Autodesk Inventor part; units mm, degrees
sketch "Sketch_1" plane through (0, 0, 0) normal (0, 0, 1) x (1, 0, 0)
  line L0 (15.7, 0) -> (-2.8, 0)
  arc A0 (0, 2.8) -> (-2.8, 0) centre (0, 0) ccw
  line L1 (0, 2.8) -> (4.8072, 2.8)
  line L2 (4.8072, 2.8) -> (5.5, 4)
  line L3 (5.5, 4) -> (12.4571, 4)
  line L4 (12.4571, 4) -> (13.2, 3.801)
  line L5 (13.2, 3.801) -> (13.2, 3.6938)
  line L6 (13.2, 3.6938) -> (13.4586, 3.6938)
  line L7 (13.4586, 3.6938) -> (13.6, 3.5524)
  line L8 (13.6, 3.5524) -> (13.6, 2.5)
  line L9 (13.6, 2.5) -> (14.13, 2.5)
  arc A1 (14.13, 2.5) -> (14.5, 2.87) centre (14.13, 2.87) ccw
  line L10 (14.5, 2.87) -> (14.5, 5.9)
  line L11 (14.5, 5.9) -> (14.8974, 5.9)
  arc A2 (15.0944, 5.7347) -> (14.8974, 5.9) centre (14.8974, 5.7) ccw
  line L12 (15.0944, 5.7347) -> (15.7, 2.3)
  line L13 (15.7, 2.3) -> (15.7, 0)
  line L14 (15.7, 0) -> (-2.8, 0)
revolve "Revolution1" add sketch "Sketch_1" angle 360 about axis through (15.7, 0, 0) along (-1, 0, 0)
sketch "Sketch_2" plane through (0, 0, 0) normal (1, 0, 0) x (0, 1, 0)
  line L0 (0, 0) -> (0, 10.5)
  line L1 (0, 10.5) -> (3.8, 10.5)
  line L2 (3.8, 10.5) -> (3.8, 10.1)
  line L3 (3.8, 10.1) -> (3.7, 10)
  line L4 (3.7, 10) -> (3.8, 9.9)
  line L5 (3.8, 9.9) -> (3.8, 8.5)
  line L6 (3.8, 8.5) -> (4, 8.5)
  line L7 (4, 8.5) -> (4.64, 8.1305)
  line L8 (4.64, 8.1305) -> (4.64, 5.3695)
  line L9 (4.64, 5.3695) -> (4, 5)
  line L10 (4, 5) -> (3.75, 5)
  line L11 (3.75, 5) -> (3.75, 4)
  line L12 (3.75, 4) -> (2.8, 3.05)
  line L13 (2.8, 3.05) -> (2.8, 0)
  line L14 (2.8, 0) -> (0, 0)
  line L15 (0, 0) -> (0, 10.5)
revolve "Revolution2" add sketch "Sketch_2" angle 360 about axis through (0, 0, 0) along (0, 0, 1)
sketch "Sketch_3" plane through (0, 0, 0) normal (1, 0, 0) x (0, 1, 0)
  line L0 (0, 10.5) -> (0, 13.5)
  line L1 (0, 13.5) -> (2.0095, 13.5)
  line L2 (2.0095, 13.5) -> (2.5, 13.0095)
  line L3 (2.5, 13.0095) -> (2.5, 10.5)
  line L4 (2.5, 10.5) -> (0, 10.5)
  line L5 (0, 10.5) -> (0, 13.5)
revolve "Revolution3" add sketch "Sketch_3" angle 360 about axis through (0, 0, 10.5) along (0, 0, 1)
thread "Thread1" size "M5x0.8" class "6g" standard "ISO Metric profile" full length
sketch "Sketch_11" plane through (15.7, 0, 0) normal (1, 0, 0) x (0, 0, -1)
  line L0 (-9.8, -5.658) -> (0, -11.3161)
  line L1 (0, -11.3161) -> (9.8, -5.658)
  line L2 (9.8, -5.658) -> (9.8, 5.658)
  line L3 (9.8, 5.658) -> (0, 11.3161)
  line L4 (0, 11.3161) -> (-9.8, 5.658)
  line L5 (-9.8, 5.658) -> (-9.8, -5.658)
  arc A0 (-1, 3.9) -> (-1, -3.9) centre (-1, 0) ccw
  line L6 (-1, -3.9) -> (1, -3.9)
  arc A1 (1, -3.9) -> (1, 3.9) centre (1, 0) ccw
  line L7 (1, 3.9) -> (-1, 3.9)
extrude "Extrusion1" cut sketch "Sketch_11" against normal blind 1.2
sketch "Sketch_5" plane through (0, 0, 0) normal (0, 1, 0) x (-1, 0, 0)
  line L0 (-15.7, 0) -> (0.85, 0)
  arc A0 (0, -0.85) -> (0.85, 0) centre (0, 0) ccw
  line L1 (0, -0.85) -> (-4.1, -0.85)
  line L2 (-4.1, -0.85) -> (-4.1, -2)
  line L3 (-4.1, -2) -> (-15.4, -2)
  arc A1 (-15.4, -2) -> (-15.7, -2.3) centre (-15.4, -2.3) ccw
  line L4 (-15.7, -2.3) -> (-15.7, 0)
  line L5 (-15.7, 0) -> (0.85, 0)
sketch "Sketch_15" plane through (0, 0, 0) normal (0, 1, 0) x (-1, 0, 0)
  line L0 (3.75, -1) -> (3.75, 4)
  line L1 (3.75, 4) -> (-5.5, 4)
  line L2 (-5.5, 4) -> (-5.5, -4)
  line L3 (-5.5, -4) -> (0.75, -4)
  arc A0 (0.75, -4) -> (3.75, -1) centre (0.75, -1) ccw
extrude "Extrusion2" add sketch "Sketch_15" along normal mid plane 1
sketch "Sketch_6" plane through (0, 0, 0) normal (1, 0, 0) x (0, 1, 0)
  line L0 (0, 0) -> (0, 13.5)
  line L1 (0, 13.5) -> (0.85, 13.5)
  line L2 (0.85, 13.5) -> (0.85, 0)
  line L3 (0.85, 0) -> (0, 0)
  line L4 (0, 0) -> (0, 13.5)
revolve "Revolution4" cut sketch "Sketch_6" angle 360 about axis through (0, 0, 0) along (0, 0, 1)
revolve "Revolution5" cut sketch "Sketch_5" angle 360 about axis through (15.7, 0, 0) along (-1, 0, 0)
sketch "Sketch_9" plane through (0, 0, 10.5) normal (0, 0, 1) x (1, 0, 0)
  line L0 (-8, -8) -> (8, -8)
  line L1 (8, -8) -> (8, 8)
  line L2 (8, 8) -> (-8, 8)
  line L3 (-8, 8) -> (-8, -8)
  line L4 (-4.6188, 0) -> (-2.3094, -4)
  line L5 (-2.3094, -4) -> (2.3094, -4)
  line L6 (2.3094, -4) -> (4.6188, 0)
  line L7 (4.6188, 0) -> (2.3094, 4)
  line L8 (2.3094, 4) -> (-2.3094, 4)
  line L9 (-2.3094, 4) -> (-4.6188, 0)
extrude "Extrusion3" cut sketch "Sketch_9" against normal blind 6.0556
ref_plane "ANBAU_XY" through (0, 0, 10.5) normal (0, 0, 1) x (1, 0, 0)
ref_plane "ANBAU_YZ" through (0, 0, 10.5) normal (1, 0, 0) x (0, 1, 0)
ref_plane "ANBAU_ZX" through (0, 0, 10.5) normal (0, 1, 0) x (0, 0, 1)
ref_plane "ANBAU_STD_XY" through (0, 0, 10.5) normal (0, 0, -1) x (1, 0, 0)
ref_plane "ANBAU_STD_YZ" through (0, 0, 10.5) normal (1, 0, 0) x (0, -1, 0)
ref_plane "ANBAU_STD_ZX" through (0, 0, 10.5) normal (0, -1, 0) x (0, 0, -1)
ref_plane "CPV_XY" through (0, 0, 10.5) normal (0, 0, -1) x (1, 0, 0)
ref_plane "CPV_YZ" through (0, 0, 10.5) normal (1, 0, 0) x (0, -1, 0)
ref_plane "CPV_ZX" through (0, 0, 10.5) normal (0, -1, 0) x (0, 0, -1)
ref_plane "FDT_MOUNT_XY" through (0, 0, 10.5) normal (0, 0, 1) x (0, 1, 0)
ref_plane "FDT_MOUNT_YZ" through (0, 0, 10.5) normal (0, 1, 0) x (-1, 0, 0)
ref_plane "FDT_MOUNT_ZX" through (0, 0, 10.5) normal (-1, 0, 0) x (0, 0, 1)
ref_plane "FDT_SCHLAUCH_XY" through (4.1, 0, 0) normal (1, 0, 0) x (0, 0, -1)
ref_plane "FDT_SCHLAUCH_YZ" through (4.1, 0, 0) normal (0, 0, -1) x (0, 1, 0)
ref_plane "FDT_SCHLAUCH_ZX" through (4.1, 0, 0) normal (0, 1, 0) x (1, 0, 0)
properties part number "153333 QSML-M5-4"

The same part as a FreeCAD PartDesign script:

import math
import FreeCAD as App
import Part
import Sketcher

V = App.Vector
Q = App.Units.Quantity


def add_polygon(sketch, points):
    """Adds a closed chain of lines whose ends are joined by coincident constraints."""
    first, n = sketch.GeometryCount, len(points)
    for a, b in zip(points, points[1:] + points[:1]):
        sketch.addGeometry(Part.LineSegment(App.Vector(*a, 0), App.Vector(*b, 0)), False)
    for i in range(n):
        sketch.addConstraint(Sketcher.Constraint("Coincident", first + i, 2, first + (i + 1) % n, 1))

doc = App.newDocument("Part")
params = doc.addObject("Spreadsheet::Sheet", "Params")
for row, (alias, value) in enumerate([
    ("sketch1_radius", "0.2 mm"),
    ("sketch1_radius2", "2.8 mm"),
    ("sketch1_radius3", "0.37 mm"),
    ("sketch1_width", "18.5 mm"),
    ("sketch1_height", "2.3 mm"),
    ("revolution_angle", "360 deg"),
    ("sketch2_height", "1 mm"),
    ("sketch2_width", "2.8 mm"),
    ("sketch2_width2", "0.2 mm"),
    ("sketch2_width3", "3.8 mm"),
    ("sketch2_height2", "10.5 mm"),
    ("revolution2_angle", "360 deg"),
    ("sketch3_height", "3 mm"),
    ("sketch3_width", "2.5 mm"),
    ("revolution3_angle", "360 deg"),
    ("sketch4_radius", "3.9 mm"),
    ("sketch4_height", "2 mm"),
    ("pocket1_length", "1.2 mm"),
    ("sketch5_radius", "3 mm"),
    ("sketch5_height", "5 mm"),
    ("sketch5_width", "9.25 mm"),
    ("pad1_length", "1 mm"),
    ("sketch6_height", "13.5 mm"),
    ("sketch6_width", "0.85 mm"),
    ("groove_angle", "360 deg"),
    ("sketch7_radius", "0.3 mm"),
    ("sketch7_radius2", "0.85 mm"),
    ("sketch7_width", "11.3 mm"),
    ("sketch7_width2", "4.1 mm"),
    ("sketch7_height", "2.3 mm"),
    ("groove2_angle", "360 deg"),
    ("sketch8_width", "16 mm"),
    ("pocket2_length", "6.0556 mm"),
], start=1):
    params.set(f"A{row}", alias)
    params.set(f"B{row}", "=" + value)
    params.setAlias(f"B{row}", alias)

body = doc.addObject("PartDesign::Body", "Body")

sketch1 = body.newObject("Sketcher::SketchObject", "Sketch")
sketch1.AttachmentSupport = (doc.getObject("XY_Plane"), [""])
sketch1.MapMode = "FlatFace"
sketch1.addGeometry([
    Part.LineSegment(V(-2.8, 0, 0), V(15.7, 0, 0)),
    Part.LineSegment(V(15.7, 0, 0), V(15.7, 2.3, 0)),
    Part.LineSegment(V(15.7, 2.3, 0), V(15.0944, 5.7347, 0)),
    Part.ArcOfCircle(Part.Circle(V(14.8974, 5.7, 0), V(0, 0, 1), 0.200033), math.radians(9.989728), math.radians(90)),
    Part.LineSegment(V(14.8974, 5.9, 0), V(14.5, 5.9, 0)),
    Part.LineSegment(V(14.5, 5.9, 0), V(14.5, 2.87, 0)),
    Part.ArcOfCircle(Part.Circle(V(14.13, 2.87, 0), V(0, 0, 1), 0.37), math.radians(-90), math.radians(0)),
    Part.LineSegment(V(14.13, 2.5, 0), V(13.6, 2.5, 0)),
    Part.LineSegment(V(13.6, 2.5, 0), V(13.6, 3.5524, 0)),
    Part.LineSegment(V(13.6, 3.5524, 0), V(13.4586, 3.6938, 0)),
    Part.LineSegment(V(13.4586, 3.6938, 0), V(13.2, 3.6938, 0)),
    Part.LineSegment(V(13.2, 3.6938, 0), V(13.2, 3.801, 0)),
    Part.LineSegment(V(13.2, 3.801, 0), V(12.4571, 4, 0)),
    Part.LineSegment(V(12.4571, 4, 0), V(5.5, 4, 0)),
    Part.LineSegment(V(5.5, 4, 0), V(4.8072, 2.8, 0)),
    Part.LineSegment(V(4.8072, 2.8, 0), V(0, 2.8, 0)),
    Part.ArcOfCircle(Part.Circle(V(0, 0, 0), V(0, 0, 1), 2.8), math.radians(90), math.radians(180)),
], False)
sketch1.addConstraint([
    Sketcher.Constraint("Coincident", 0, 2, 1, 1),
    Sketcher.Constraint("Coincident", 1, 2, 2, 1),
    Sketcher.Constraint("Tangent", 2, 2, 3, 1),
    Sketcher.Constraint("Tangent", 3, 2, 4, 1),
    Sketcher.Constraint("Coincident", 4, 2, 5, 1),
    Sketcher.Constraint("Tangent", 5, 2, 6, 2),
    Sketcher.Constraint("Tangent", 6, 1, 7, 1),
    Sketcher.Constraint("Coincident", 7, 2, 8, 1),
    Sketcher.Constraint("Coincident", 8, 2, 9, 1),
    Sketcher.Constraint("Coincident", 9, 2, 10, 1),
    Sketcher.Constraint("Coincident", 10, 2, 11, 1),
    Sketcher.Constraint("Coincident", 11, 2, 12, 1),
    Sketcher.Constraint("Coincident", 12, 2, 13, 1),
    Sketcher.Constraint("Coincident", 13, 2, 14, 1),
    Sketcher.Constraint("Coincident", 14, 2, 15, 1),
    Sketcher.Constraint("Tangent", 15, 2, 16, 1),
    Sketcher.Constraint("Coincident", 16, 2, 0, 1),
    Sketcher.Constraint("Horizontal", 0),
    Sketcher.Constraint("Vertical", 1),
    Sketcher.Constraint("Horizontal", 4),
    Sketcher.Constraint("Vertical", 5),
    Sketcher.Constraint("Horizontal", 7),
    Sketcher.Constraint("Vertical", 8),
    Sketcher.Constraint("Horizontal", 10),
    Sketcher.Constraint("Vertical", 11),
    Sketcher.Constraint("Horizontal", 13),
    Sketcher.Constraint("Horizontal", 15),
    Sketcher.Constraint("Coincident", 16, 3, -1, 1),
    Sketcher.Constraint("PointOnObject", 0, 2, -1),
    Sketcher.Constraint("Radius", 3, Q("0.2 mm")),
    Sketcher.Constraint("Radius", 16, Q("2.8 mm")),
    Sketcher.Constraint("Angle", 2, Q("99.9995 deg")),
    Sketcher.Constraint("Angle", 9, Q("135 deg")),
    Sketcher.Constraint("Angle", 14, Q("-119.9993 deg")),
    Sketcher.Constraint("Radius", 6, Q("0.37 mm")),
    Sketcher.Constraint("DistanceX", 0, 1, 0, 2, Q("18.5 mm")),
    Sketcher.Constraint("DistanceY", 1, 1, 1, 2, Q("2.3 mm")),
    Sketcher.Constraint("DistanceY", -1, 1, 12, 2, Q("4 mm")),
    Sketcher.Constraint("Distance", 9, Q("0.2 mm")),
    Sketcher.Constraint("DistanceX", 7, 2, 7, 1, Q("0.53 mm")),
    Sketcher.Constraint("DistanceY", 5, 2, 5, 1, Q("3.03 mm")),
    Sketcher.Constraint("DistanceY", -1, 1, 3, 3, Q("5.7 mm")),
    Sketcher.Constraint("DistanceX", -1, 1, 4, 2, Q("14.5 mm")),
    Sketcher.Constraint("DistanceX", -1, 1, 10, 2, Q("13.2 mm")),
    Sketcher.Constraint("DistanceX", -1, 1, 13, 2, Q("5.5 mm")),
    Sketcher.Constraint("DistanceX", 13, 2, 13, 1, Q("6.957 mm")),
    Sketcher.Constraint("Distance", 12, Q("0.769 mm")),
    Sketcher.Constraint("DistanceY", 8, 1, 8, 2, Q("1.0524 mm")),
])
sketch1.setExpression("Constraints[29]", "Params.sketch1_radius")
sketch1.setExpression("Constraints[30]", "Params.sketch1_radius2")
sketch1.setExpression("Constraints[34]", "Params.sketch1_radius3")
sketch1.setExpression("Constraints[35]", "Params.sketch1_width")
sketch1.setExpression("Constraints[36]", "Params.sketch1_height")
revolution = body.newObject("PartDesign::Revolution", "Revolution")
revolution.Profile = sketch1
revolution.ReferenceAxis = (sketch1, ["H_Axis"])
revolution.setExpression("Angle", "Params.revolution_angle")

sketch2 = body.newObject("Sketcher::SketchObject", "Sketch001")
sketch2.AttachmentSupport = (doc.getObject("YZ_Plane"), [""])
sketch2.MapMode = "FlatFace"
add_polygon(sketch2, [(0, 10.5), (0, 0), (2.8, 0), (2.8, 3.05), (3.75, 4), (3.75, 5), (4, 5), (4.64, 5.3695), (4.64, 8.1305), (4, 8.5), (3.8, 8.5), (3.8, 9.9), (3.7, 10), (3.8, 10.1), (3.8, 10.5)])
sketch2.addConstraint([
    Sketcher.Constraint("Vertical", 0),
    Sketcher.Constraint("Horizontal", 1),
    Sketcher.Constraint("Vertical", 2),
    Sketcher.Constraint("Vertical", 4),
    Sketcher.Constraint("Horizontal", 5),
    Sketcher.Constraint("Vertical", 7),
    Sketcher.Constraint("Horizontal", 9),
    Sketcher.Constraint("Vertical", 10),
    Sketcher.Constraint("Vertical", 13),
    Sketcher.Constraint("Horizontal", 14),
    Sketcher.Constraint("Coincident", 0, 2, -1, 1),
    Sketcher.Constraint("Perpendicular", 3, 11),
    Sketcher.Constraint("Perpendicular", 11, 12),
    Sketcher.Constraint("Vertical", 5, 2, 8, 2),
    Sketcher.Constraint("Vertical", 10, 2, 12, 2),
    Sketcher.Constraint("Equal", 6, 8),
    Sketcher.Constraint("Equal", 11, 12),
    Sketcher.Constraint("DistanceY", 4, 1, 4, 2, Q("1 mm")),
    Sketcher.Constraint("Angle", 6, Q("29.9997 deg")),
    Sketcher.Constraint("DistanceX", 1, 1, 1, 2, Q("2.8 mm")),
    Sketcher.Constraint("DistanceX", 9, 2, 9, 1, Q("0.2 mm")),
    Sketcher.Constraint("DistanceX", 14, 2, 14, 1, Q("3.8 mm")),
    Sketcher.Constraint("DistanceY", 0, 2, 0, 1, Q("10.5 mm")),
    Sketcher.Constraint("DistanceY", 10, 1, 10, 2, Q("1.4 mm")),
    Sketcher.Constraint("DistanceY", 13, 1, 13, 2, Q("0.4 mm")),
    Sketcher.Constraint("DistanceY", -1, 1, 3, 2, Q("4 mm")),
    Sketcher.Constraint("DistanceY", -1, 1, 11, 2, Q("10 mm")),
    Sketcher.Constraint("DistanceX", 5, 1, 5, 2, Q("0.25 mm")),
    Sketcher.Constraint("DistanceY", 7, 1, 7, 2, Q("2.761 mm")),
])
sketch2.setExpression("Constraints[32]", "Params.sketch2_height")
sketch2.setExpression("Constraints[34]", "Params.sketch2_width")
sketch2.setExpression("Constraints[35]", "Params.sketch2_width2")
sketch2.setExpression("Constraints[36]", "Params.sketch2_width3")
sketch2.setExpression("Constraints[37]", "Params.sketch2_height2")
revolution2 = body.newObject("PartDesign::Revolution", "Revolution001")
revolution2.Profile = sketch2
revolution2.ReferenceAxis = (sketch2, ["V_Axis"])
revolution2.setExpression("Angle", "Params.revolution2_angle")

sketch3 = body.newObject("Sketcher::SketchObject", "Sketch002")
sketch3.AttachmentSupport = (doc.getObject("YZ_Plane"), [""])
sketch3.MapMode = "FlatFace"
add_polygon(sketch3, [(0, 13.5), (0, 10.5), (2.5, 10.5), (2.5, 13.0095), (2.0095, 13.5)])
sketch3.addConstraint([
    Sketcher.Constraint("Vertical", 0),
    Sketcher.Constraint("Horizontal", 1),
    Sketcher.Constraint("Vertical", 2),
    Sketcher.Constraint("Horizontal", 4),
    Sketcher.Constraint("PointOnObject", 0, 2, -2),
    Sketcher.Constraint("DistanceY", 0, 2, 0, 1, Q("3 mm")),
    Sketcher.Constraint("Angle", 3, Q("135 deg")),
    Sketcher.Constraint("DistanceX", 1, 1, 1, 2, Q("2.5 mm")),
    Sketcher.Constraint("DistanceY", -1, 1, 0, 2, Q("10.5 mm")),
    Sketcher.Constraint("DistanceX", 4, 2, 4, 1, Q("2.0095 mm")),
])
sketch3.setExpression("Constraints[10]", "Params.sketch3_height")
sketch3.setExpression("Constraints[12]", "Params.sketch3_width")
revolution3 = body.newObject("PartDesign::Revolution", "Revolution002")
revolution3.Profile = sketch3
revolution3.ReferenceAxis = (sketch3, ["V_Axis"])
revolution3.setExpression("Angle", "Params.revolution3_angle")

sketch4 = body.newObject("Sketcher::SketchObject", "Sketch003")
sketch4.AttachmentSupport = (doc.getObject("YZ_Plane"), [""])
sketch4.MapMode = "FlatFace"
sketch4.AttachmentOffset = App.Placement(V(0, 0, 15.7), App.Rotation())
add_polygon(sketch4, [(5.658, 9.8), (-5.658, 9.8), (-11.3161, 0), (-5.658, -9.8), (5.658, -9.8), (11.3161, 0)])
sketch4.addGeometry(Part.ArcOfCircle(Part.Circle(V(0, 1, 0), V(0, 0, 1), 3.9), math.radians(0), math.radians(180)), False)
sketch4.addGeometry(Part.LineSegment(V(3.9, 1, 0), V(3.9, -1, 0)), False)
sketch4.addGeometry(Part.ArcOfCircle(Part.Circle(V(0, -1, 0), V(0, 0, 1), 3.9), math.radians(180), math.radians(360)), False)
sketch4.addGeometry(Part.LineSegment(V(-3.9, -1, 0), V(-3.9, 1, 0)), False)
sketch4.addConstraint([
    Sketcher.Constraint("Tangent", 6, 1, 7, 1),
    Sketcher.Constraint("Tangent", 7, 2, 8, 2),
    Sketcher.Constraint("Tangent", 8, 1, 9, 1),
    Sketcher.Constraint("Tangent", 9, 2, 6, 2),
    Sketcher.Constraint("Horizontal", 0),
    Sketcher.Constraint("Horizontal", 3),
    Sketcher.Constraint("Vertical", 7),
    Sketcher.Constraint("Vertical", 9),
    Sketcher.Constraint("Symmetric", 6, 3, 8, 3, -1, 1),
    Sketcher.Constraint("Symmetric", 0, 2, 3, 2, -1, 1),
    Sketcher.Constraint("Symmetric", 1, 2, 4, 2, -1, 1),
    Sketcher.Constraint("PointOnObject", 1, 2, -1),
    Sketcher.Constraint("Parallel", 2, 5),
    Sketcher.Constraint("Vertical", 0, 2, 2, 2),
    Sketcher.Constraint("Radius", 6, Q("3.9 mm")),
    Sketcher.Constraint("DistanceY", 7, 2, 7, 1, Q("2 mm")),
    Sketcher.Constraint("Angle", 1, Q("-120.0003 deg")),
    Sketcher.Constraint("DistanceY", -1, 1, 0, 2, Q("9.8 mm")),
    Sketcher.Constraint("DistanceX", 0, 2, 0, 1, Q("11.316 mm")),
])
sketch4.setExpression("Constraints[20]", "Params.sketch4_radius")
sketch4.setExpression("Constraints[21]", "Params.sketch4_height")
pocket1 = body.newObject("PartDesign::Pocket", "Pocket")
pocket1.Profile = sketch4
pocket1.setExpression("Length", "Params.pocket1_length")

sketch5 = body.newObject("Sketcher::SketchObject", "Sketch004")
sketch5.AttachmentSupport = (doc.getObject("XZ_Plane"), [""])
sketch5.MapMode = "FlatFace"
sketch5.addGeometry([
    Part.ArcOfCircle(Part.Circle(V(-0.75, -1, 0), V(0, 0, 1), 3), math.radians(180), math.radians(270)),
    Part.LineSegment(V(-3.75, -1, 0), V(-3.75, 4, 0)),
    Part.LineSegment(V(-3.75, 4, 0), V(5.5, 4, 0)),
    Part.LineSegment(V(5.5, 4, 0), V(5.5, -4, 0)),
    Part.LineSegment(V(5.5, -4, 0), V(-0.75, -4, 0)),
], False)
sketch5.addConstraint([
    Sketcher.Constraint("Tangent", 0, 1, 1, 1),
    Sketcher.Constraint("Coincident", 1, 2, 2, 1),
    Sketcher.Constraint("Coincident", 2, 2, 3, 1),
    Sketcher.Constraint("Coincident", 3, 2, 4, 1),
    Sketcher.Constraint("Tangent", 4, 2, 0, 2),
    Sketcher.Constraint("Vertical", 1),
    Sketcher.Constraint("Horizontal", 2),
    Sketcher.Constraint("Vertical", 3),
    Sketcher.Constraint("Horizontal", 4),
    Sketcher.Constraint("Radius", 0, Q("3 mm")),
    Sketcher.Constraint("DistanceY", 1, 1, 1, 2, Q("5 mm")),
    Sketcher.Constraint("DistanceY", 0, 3, -1, 1, Q("1 mm")),
    Sketcher.Constraint("DistanceX", 2, 1, 2, 2, Q("9.25 mm")),
    Sketcher.Constraint("DistanceX", -1, 1, 2, 2, Q("5.5 mm")),
])
sketch5.setExpression("Constraints[9]", "Params.sketch5_radius")
sketch5.setExpression("Constraints[10]", "Params.sketch5_height")
sketch5.setExpression("Constraints[12]", "Params.sketch5_width")
pad1 = body.newObject("PartDesign::Pad", "Pad")
pad1.Profile = sketch5
pad1.setExpression("Length", "Params.pad1_length")
pad1.Midplane = True

sketch6 = body.newObject("Sketcher::SketchObject", "Sketch005")
sketch6.AttachmentSupport = (doc.getObject("YZ_Plane"), [""])
sketch6.MapMode = "FlatFace"
add_polygon(sketch6, [(0, 13.5), (0, 0), (0.85, 0), (0.85, 13.5)])
sketch6.addConstraint([
    Sketcher.Constraint("Vertical", 0),
    Sketcher.Constraint("Horizontal", 1),
    Sketcher.Constraint("Vertical", 2),
    Sketcher.Constraint("Horizontal", 3),
    Sketcher.Constraint("Coincident", 0, 2, -1, 1),
    Sketcher.Constraint("DistanceY", 0, 2, 0, 1, Q("13.5 mm")),
    Sketcher.Constraint("DistanceX", 1, 1, 1, 2, Q("0.85 mm")),
])
sketch6.setExpression("Constraints[9]", "Params.sketch6_height")
sketch6.setExpression("Constraints[10]", "Params.sketch6_width")
groove = body.newObject("PartDesign::Groove", "Groove")
groove.Profile = sketch6
groove.ReferenceAxis = (sketch6, ["V_Axis"])
groove.setExpression("Angle", "Params.groove_angle")

sketch7 = body.newObject("Sketcher::SketchObject", "Sketch006")
sketch7.AttachmentSupport = (doc.getObject("XZ_Plane"), [""])
sketch7.MapMode = "FlatFace"
sketch7.addGeometry([
    Part.LineSegment(V(-0.85, 0, 0), V(15.7, 0, 0)),
    Part.LineSegment(V(15.7, 0, 0), V(15.7, -2.3, 0)),
    Part.ArcOfCircle(Part.Circle(V(15.4, -2.3, 0), V(0, 0, 1), 0.3), math.radians(0), math.radians(90)),
    Part.LineSegment(V(15.4, -2, 0), V(4.1, -2, 0)),
    Part.LineSegment(V(4.1, -2, 0), V(4.1, -0.85, 0)),
    Part.LineSegment(V(4.1, -0.85, 0), V(0, -0.85, 0)),
    Part.ArcOfCircle(Part.Circle(V(0, 0, 0), V(0, 0, 1), 0.85), math.radians(180), math.radians(270)),
], False)
sketch7.addConstraint([
    Sketcher.Constraint("Coincident", 0, 2, 1, 1),
    Sketcher.Constraint("Tangent", 1, 2, 2, 1),
    Sketcher.Constraint("Tangent", 2, 2, 3, 1),
    Sketcher.Constraint("Coincident", 3, 2, 4, 1),
    Sketcher.Constraint("Coincident", 4, 2, 5, 1),
    Sketcher.Constraint("Tangent", 5, 2, 6, 2),
    Sketcher.Constraint("Coincident", 6, 1, 0, 1),
    Sketcher.Constraint("Horizontal", 0),
    Sketcher.Constraint("Vertical", 1),
    Sketcher.Constraint("Horizontal", 3),
    Sketcher.Constraint("Vertical", 4),
    Sketcher.Constraint("Horizontal", 5),
    Sketcher.Constraint("Coincident", 6, 3, -1, 1),
    Sketcher.Constraint("PointOnObject", 0, 2, -1),
    Sketcher.Constraint("Radius", 2, Q("0.3 mm")),
    Sketcher.Constraint("Radius", 6, Q("0.85 mm")),
    Sketcher.Constraint("DistanceX", 3, 2, 3, 1, Q("11.3 mm")),
    Sketcher.Constraint("DistanceX", 5, 2, 5, 1, Q("4.1 mm")),
    Sketcher.Constraint("DistanceY", 1, 2, 1, 1, Q("2.3 mm")),
])
sketch7.setExpression("Constraints[14]", "Params.sketch7_radius")
sketch7.setExpression("Constraints[15]", "Params.sketch7_radius2")
sketch7.setExpression("Constraints[16]", "Params.sketch7_width")
sketch7.setExpression("Constraints[17]", "Params.sketch7_width2")
sketch7.setExpression("Constraints[18]", "Params.sketch7_height")
groove2 = body.newObject("PartDesign::Groove", "Groove001")
groove2.Profile = sketch7
groove2.ReferenceAxis = (sketch7, ["H_Axis"])
groove2.setExpression("Angle", "Params.groove2_angle")

sketch8 = body.newObject("Sketcher::SketchObject", "Sketch007")
sketch8.AttachmentSupport = (doc.getObject("XY_Plane"), [""])
sketch8.MapMode = "FlatFace"
sketch8.AttachmentOffset = App.Placement(V(0, 0, 10.5), App.Rotation())
add_polygon(sketch8, [(-8, 8), (-8, -8), (8, -8), (8, 8)])
add_polygon(sketch8, [(-2.3094, -4), (-4.6188, 0), (-2.3094, 4), (2.3094, 4), (4.6188, 0), (2.3094, -4)])
sketch8.addConstraint([
    Sketcher.Constraint("Vertical", 0),
    Sketcher.Constraint("Horizontal", 1),
    Sketcher.Constraint("Vertical", 2),
    Sketcher.Constraint("Horizontal", 3),
    Sketcher.Constraint("Horizontal", 6),
    Sketcher.Constraint("Horizontal", 9),
    Sketcher.Constraint("Symmetric", 0, 2, 2, 2, -1, 1),
    Sketcher.Constraint("Symmetric", 4, 2, 7, 2, -1, 1),
    Sketcher.Constraint("Symmetric", 5, 2, 8, 2, -1, 1),
    Sketcher.Constraint("PointOnObject", 4, 2, -1),
    Sketcher.Constraint("Parallel", 4, 7),
    Sketcher.Constraint("Vertical", 6, 2, 8, 2),
    Sketcher.Constraint("Equal", 3, 0),
    Sketcher.Constraint("DistanceX", 1, 1, 1, 2, Q("16 mm")),
    Sketcher.Constraint("Angle", 4, Q("120 deg")),
    Sketcher.Constraint("DistanceY", -1, 1, 5, 2, Q("4 mm")),
    Sketcher.Constraint("DistanceX", 6, 1, 6, 2, Q("4.6188 mm")),
])
sketch8.setExpression("Constraints[23]", "Params.sketch8_width")
pocket2 = body.newObject("PartDesign::Pocket", "Pocket001")
pocket2.Profile = sketch8
pocket2.setExpression("Length", "Params.pocket2_length")

doc.recompute()
